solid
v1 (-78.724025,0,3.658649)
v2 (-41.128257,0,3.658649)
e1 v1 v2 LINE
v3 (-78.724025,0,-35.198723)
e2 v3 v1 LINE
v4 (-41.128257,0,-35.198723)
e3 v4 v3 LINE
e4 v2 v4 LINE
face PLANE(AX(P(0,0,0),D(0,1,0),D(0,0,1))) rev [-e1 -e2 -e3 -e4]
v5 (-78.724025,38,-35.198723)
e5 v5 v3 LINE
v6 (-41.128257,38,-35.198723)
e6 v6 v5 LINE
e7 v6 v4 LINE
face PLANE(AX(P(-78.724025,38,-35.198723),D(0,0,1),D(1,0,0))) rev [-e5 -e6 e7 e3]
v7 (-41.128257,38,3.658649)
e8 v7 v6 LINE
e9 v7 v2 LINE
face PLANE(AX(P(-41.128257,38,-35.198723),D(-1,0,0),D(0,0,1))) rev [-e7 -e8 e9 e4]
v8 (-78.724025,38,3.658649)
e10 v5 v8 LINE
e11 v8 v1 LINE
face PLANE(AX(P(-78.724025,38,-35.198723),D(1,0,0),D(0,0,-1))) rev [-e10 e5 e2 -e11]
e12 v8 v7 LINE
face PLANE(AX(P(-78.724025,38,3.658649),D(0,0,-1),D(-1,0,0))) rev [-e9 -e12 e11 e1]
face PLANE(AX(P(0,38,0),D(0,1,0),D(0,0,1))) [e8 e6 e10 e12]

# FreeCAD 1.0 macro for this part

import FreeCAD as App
import Part
import Sketcher

V = App.Vector


def add_polygon(sketch, points):
    """Adds a closed chain of lines whose ends are joined by coincident constraints."""
    first, n = sketch.GeometryCount, len(points)
    for a, b in zip(points, points[1:] + points[:1]):
        sketch.addGeometry(Part.LineSegment(App.Vector(*a, 0), App.Vector(*b, 0)), False)
    for i in range(n):
        sketch.addConstraint(Sketcher.Constraint("Coincident", first + i, 2, first + (i + 1) % n, 1))

doc = App.newDocument("Part")
body = doc.addObject("PartDesign::Body", "Body")

# Sketch on XZ plane
sketch1 = doc.addObject("Sketcher::SketchObject", "Sketch")
body.addObject(sketch1)
sketch1.AttachmentSupport = (doc.XZ_Plane, [""])
sketch1.MapMode = "FlatFace"
add_polygon(sketch1, [(-79, -35), (-79, 4), (-41, 4), (-41, -35)])  # lines 0-3
sketch1.addConstraint([
    Sketcher.Constraint("Vertical", 0),
    Sketcher.Constraint("Horizontal", 1),
    Sketcher.Constraint("Vertical", 2),
    Sketcher.Constraint("Horizontal", 3),
    Sketcher.Constraint("DistanceX", 1, 1, 1, 2, 37.595768),
    Sketcher.Constraint("DistanceY", 0, 1, 0, 2, 38.857371),
    Sketcher.Constraint("DistanceY", -1, 1, 0, 2, 3.658649),
    Sketcher.Constraint("DistanceX", 0, 2, -1, 1, 78.724025),
])
pad1 = doc.addObject("PartDesign::Pad", "Pad")
body.addObject(pad1)
pad1.Profile = sketch1
pad1.Length = 38
pad1.Reversed = True

doc.recompute()
